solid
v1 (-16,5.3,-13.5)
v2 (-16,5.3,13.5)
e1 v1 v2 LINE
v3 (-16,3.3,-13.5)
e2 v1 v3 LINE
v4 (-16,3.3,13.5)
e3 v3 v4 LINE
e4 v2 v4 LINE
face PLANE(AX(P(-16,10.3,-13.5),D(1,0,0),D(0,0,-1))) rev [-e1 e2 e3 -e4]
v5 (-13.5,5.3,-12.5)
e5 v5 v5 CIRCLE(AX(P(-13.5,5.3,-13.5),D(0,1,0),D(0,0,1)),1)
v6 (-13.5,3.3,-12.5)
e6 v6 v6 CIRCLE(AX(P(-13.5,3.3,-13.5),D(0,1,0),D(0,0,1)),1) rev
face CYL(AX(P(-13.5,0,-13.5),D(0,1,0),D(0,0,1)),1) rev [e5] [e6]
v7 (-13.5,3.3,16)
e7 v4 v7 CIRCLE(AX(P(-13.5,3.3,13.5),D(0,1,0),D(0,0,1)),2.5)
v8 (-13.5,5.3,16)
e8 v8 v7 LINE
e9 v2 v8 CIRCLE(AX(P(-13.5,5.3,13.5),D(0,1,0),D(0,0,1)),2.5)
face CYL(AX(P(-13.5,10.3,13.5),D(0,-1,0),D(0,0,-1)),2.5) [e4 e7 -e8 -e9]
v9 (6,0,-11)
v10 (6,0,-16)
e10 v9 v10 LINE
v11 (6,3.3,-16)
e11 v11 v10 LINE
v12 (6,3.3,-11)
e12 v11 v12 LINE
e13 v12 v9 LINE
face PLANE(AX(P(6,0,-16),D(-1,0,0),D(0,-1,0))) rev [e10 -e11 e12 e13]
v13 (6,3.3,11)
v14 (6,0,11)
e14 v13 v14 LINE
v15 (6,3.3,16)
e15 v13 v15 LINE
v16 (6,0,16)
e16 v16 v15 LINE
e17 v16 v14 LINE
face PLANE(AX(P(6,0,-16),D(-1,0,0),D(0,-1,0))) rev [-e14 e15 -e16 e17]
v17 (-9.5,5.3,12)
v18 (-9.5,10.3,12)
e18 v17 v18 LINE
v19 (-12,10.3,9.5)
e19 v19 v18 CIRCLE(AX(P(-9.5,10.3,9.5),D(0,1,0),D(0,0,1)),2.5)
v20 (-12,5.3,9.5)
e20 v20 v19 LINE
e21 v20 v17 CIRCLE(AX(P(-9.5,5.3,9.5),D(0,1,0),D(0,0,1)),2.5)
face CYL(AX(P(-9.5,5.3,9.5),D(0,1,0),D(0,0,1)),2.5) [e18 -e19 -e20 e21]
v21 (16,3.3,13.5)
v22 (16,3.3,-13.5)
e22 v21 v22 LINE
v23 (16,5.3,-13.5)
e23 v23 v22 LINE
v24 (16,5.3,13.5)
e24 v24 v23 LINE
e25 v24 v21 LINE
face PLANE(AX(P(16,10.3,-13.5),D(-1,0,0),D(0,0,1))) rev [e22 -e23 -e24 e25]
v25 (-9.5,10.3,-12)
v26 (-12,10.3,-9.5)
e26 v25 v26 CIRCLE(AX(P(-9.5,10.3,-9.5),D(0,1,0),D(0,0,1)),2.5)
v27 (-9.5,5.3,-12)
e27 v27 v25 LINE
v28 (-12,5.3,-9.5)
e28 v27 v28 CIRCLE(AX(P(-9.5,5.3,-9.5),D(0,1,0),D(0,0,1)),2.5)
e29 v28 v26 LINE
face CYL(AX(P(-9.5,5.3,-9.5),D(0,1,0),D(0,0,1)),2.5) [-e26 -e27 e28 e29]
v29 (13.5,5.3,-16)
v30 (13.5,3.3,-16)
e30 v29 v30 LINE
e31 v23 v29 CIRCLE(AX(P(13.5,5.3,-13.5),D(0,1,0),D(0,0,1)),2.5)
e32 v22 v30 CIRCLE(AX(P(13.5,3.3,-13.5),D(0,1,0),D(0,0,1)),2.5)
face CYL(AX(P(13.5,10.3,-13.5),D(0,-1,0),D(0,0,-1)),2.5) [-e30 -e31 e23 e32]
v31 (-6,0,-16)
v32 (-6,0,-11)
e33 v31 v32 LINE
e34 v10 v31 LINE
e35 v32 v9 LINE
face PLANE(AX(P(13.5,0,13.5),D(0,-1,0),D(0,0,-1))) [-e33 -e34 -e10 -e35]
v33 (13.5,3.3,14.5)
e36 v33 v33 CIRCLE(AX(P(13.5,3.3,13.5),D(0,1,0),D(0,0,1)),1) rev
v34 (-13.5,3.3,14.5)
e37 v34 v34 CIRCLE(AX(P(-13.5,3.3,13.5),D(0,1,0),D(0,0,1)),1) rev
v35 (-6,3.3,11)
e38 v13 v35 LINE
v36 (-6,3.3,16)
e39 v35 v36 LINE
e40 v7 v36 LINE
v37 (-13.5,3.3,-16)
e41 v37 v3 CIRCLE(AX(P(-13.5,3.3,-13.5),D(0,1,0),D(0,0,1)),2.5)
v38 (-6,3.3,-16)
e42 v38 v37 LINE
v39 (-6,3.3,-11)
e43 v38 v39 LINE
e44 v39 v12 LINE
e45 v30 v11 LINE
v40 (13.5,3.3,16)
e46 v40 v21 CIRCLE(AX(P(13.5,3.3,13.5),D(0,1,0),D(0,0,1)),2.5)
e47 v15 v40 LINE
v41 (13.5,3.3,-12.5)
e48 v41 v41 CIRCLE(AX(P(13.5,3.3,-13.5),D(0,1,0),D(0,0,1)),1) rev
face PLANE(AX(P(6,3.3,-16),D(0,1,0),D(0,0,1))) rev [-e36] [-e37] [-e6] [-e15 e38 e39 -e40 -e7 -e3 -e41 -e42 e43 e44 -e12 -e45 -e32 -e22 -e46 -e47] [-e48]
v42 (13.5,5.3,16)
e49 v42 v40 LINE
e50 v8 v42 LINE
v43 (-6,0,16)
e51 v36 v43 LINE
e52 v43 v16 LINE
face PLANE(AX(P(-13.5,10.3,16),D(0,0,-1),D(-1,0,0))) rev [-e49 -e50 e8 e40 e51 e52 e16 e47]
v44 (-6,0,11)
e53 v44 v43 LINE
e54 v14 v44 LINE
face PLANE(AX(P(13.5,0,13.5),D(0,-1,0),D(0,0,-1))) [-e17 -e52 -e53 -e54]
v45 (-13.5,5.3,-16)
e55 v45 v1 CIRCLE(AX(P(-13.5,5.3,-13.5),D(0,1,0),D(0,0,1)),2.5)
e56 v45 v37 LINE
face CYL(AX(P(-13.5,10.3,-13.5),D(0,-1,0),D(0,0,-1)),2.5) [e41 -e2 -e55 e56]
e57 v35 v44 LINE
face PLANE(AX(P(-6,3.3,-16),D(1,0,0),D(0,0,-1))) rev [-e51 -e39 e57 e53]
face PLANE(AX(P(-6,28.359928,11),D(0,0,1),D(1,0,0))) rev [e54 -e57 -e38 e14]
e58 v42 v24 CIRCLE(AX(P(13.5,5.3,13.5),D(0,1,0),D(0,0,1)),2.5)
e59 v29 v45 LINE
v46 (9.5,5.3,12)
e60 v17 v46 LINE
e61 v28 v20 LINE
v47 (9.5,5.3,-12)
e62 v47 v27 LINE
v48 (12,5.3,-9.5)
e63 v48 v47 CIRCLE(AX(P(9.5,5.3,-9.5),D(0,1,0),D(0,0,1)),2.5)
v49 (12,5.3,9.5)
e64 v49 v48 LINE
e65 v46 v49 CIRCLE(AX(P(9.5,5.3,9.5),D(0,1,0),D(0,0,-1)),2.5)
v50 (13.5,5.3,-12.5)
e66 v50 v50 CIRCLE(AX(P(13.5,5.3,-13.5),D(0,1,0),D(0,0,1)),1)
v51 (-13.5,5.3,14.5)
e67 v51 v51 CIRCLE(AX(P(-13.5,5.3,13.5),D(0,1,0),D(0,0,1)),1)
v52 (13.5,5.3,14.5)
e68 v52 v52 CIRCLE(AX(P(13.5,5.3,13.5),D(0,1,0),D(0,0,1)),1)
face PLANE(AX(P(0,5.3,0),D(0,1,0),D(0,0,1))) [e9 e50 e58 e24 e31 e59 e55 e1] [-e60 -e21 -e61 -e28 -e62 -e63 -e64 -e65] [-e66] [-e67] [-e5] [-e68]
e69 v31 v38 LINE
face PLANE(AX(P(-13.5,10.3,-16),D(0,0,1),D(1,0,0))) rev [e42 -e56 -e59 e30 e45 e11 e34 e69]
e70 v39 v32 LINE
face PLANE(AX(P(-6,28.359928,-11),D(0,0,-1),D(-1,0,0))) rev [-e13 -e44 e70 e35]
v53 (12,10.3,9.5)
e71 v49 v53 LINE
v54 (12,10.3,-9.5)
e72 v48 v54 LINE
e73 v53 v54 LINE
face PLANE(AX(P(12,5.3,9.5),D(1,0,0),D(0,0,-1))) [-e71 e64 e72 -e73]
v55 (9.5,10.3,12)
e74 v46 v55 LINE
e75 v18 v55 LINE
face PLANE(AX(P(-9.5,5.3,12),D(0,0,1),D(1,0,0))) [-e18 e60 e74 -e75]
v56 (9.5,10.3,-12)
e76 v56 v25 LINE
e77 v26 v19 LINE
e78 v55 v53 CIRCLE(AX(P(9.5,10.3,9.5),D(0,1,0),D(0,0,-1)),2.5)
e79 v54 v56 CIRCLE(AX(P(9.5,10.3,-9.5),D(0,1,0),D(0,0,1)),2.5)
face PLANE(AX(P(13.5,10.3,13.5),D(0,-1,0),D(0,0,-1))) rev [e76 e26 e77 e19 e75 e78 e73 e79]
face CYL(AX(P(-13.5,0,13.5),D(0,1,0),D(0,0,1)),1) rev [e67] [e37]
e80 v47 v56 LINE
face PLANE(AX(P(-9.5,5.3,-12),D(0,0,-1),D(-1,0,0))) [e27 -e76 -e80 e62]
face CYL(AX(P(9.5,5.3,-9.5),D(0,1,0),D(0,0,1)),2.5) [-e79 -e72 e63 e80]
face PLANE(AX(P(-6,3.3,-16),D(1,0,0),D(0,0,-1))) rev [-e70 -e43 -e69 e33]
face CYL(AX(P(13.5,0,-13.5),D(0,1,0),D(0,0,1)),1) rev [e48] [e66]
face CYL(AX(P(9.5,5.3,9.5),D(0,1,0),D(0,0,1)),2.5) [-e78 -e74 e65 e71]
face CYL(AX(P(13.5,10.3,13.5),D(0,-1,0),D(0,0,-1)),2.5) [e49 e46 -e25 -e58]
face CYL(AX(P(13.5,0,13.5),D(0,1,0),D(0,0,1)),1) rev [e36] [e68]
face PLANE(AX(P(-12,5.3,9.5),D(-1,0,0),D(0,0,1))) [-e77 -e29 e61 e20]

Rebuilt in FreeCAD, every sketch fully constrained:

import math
import FreeCAD as App
import Part
import Sketcher

V = App.Vector


def add_polygon(sketch, points):
    """Adds a closed chain of lines whose ends are joined by coincident constraints."""
    first, n = sketch.GeometryCount, len(points)
    for a, b in zip(points, points[1:] + points[:1]):
        sketch.addGeometry(Part.LineSegment(App.Vector(*a, 0), App.Vector(*b, 0)), False)
    for i in range(n):
        sketch.addConstraint(Sketcher.Constraint("Coincident", first + i, 2, first + (i + 1) % n, 1))

doc = App.newDocument("Part")
body = doc.addObject("PartDesign::Body", "Body")

sketch1 = body.newObject("Sketcher::SketchObject", "Sketch")
sketch1.AttachmentSupport = (doc.getObject("XZ_Plane"), [""])
sketch1.MapMode = "FlatFace"
sketch1.addGeometry(Part.LineSegment(V(13.5, -16, 0), V(-13.5, -16, 0)), False)
sketch1.addGeometry(Part.ArcOfCircle(Part.Circle(V(-13.5, -13.5, 0), V(0, 0, 1), 2.5), math.radians(180), math.radians(270)), False)
sketch1.addGeometry(Part.LineSegment(V(-16, -13.5, 0), V(-16, 13.5, 0)), False)
sketch1.addGeometry(Part.ArcOfCircle(Part.Circle(V(-13.5, 13.5, 0), V(0, 0, 1), 2.5), math.radians(90), math.radians(180)), False)
sketch1.addGeometry(Part.LineSegment(V(-13.5, 16, 0), V(13.5, 16, 0)), False)
sketch1.addGeometry(Part.ArcOfCircle(Part.Circle(V(13.5, 13.5, 0), V(0, 0, 1), 2.5), math.radians(0), math.radians(90)), False)
sketch1.addGeometry(Part.LineSegment(V(16, 13.5, 0), V(16, -13.5, 0)), False)
sketch1.addGeometry(Part.ArcOfCircle(Part.Circle(V(13.5, -13.5, 0), V(0, 0, 1), 2.5), math.radians(-90), math.radians(0)), False)
sketch1.addConstraint(Sketcher.Constraint("Tangent", 0, 2, 1, 2))
sketch1.addConstraint(Sketcher.Constraint("Tangent", 1, 1, 2, 1))
sketch1.addConstraint(Sketcher.Constraint("Tangent", 2, 2, 3, 2))
sketch1.addConstraint(Sketcher.Constraint("Tangent", 3, 1, 4, 1))
sketch1.addConstraint(Sketcher.Constraint("Tangent", 4, 2, 5, 2))
sketch1.addConstraint(Sketcher.Constraint("Tangent", 5, 1, 6, 1))
sketch1.addConstraint(Sketcher.Constraint("Tangent", 6, 2, 7, 2))
sketch1.addConstraint(Sketcher.Constraint("Tangent", 7, 1, 0, 1))
sketch1.addConstraint(Sketcher.Constraint("Horizontal", 0))
sketch1.addConstraint(Sketcher.Constraint("Vertical", 2))
sketch1.addConstraint(Sketcher.Constraint("Horizontal", 4))
sketch1.addConstraint(Sketcher.Constraint("Vertical", 6))
sketch1.addConstraint(Sketcher.Constraint("Equal", 1, 3))
sketch1.addConstraint(Sketcher.Constraint("Equal", 3, 5))
sketch1.addConstraint(Sketcher.Constraint("Equal", 5, 7))
sketch1.addConstraint(Sketcher.Constraint("Symmetric", 1, 3, 5, 3, -1, 1))
sketch1.addConstraint(Sketcher.Constraint("Equal", 4, 2))
sketch1.addConstraint(Sketcher.Constraint("Radius", 1, 2.5))
sketch1.addConstraint(Sketcher.Constraint("DistanceX", 0, 2, 0, 1, 27.0))
pad1 = body.newObject("PartDesign::Pad", "Pad")
pad1.Profile = sketch1
pad1.Length = 10.3
pad1.Reversed = True

sketch2 = body.newObject("Sketcher::SketchObject", "Sketch001")
sketch2.AttachmentSupport = (doc.getObject("XZ_Plane"), [""])
sketch2.MapMode = "FlatFace"
sketch2.AttachmentOffset = App.Placement(V(0, 0, -10.3), App.Rotation())
add_polygon(sketch2, [(-21.641, -21.641), (-21.641, 21.641), (21.641, 21.641), (21.641, -21.641)])
sketch2.addGeometry(Part.LineSegment(V(9.5, 12, 0), V(-9.5, 12, 0)), False)
sketch2.addGeometry(Part.ArcOfCircle(Part.Circle(V(-9.5, 9.5, 0), V(0, 0, 1), 2.5), math.radians(90), math.radians(180)), False)
sketch2.addGeometry(Part.LineSegment(V(-12, 9.5, 0), V(-12, -9.5, 0)), False)
sketch2.addGeometry(Part.ArcOfCircle(Part.Circle(V(-9.5, -9.5, 0), V(0, 0, 1), 2.5), math.radians(180), math.radians(270)), False)
sketch2.addGeometry(Part.LineSegment(V(-9.5, -12, 0), V(9.5, -12, 0)), False)
sketch2.addGeometry(Part.ArcOfCircle(Part.Circle(V(9.5, -9.5, 0), V(0, 0, 1), 2.5), math.radians(-90), math.radians(0)), False)
sketch2.addGeometry(Part.LineSegment(V(12, -9.5, 0), V(12, 9.5, 0)), False)
sketch2.addGeometry(Part.ArcOfCircle(Part.Circle(V(9.5, 9.5, 0), V(0, 0, 1), 2.5), math.radians(0), math.radians(90)), False)
sketch2.addConstraint(Sketcher.Constraint("Tangent", 4, 2, 5, 1))
sketch2.addConstraint(Sketcher.Constraint("Tangent", 5, 2, 6, 1))
sketch2.addConstraint(Sketcher.Constraint("Tangent", 6, 2, 7, 1))
sketch2.addConstraint(Sketcher.Constraint("Tangent", 7, 2, 8, 1))
sketch2.addConstraint(Sketcher.Constraint("Tangent", 8, 2, 9, 1))
sketch2.addConstraint(Sketcher.Constraint("Tangent", 9, 2, 10, 1))
sketch2.addConstraint(Sketcher.Constraint("Tangent", 10, 2, 11, 1))
sketch2.addConstraint(Sketcher.Constraint("Tangent", 11, 2, 4, 1))
sketch2.addConstraint(Sketcher.Constraint("Vertical", 0))
sketch2.addConstraint(Sketcher.Constraint("Horizontal", 1))
sketch2.addConstraint(Sketcher.Constraint("Vertical", 2))
sketch2.addConstraint(Sketcher.Constraint("Horizontal", 3))
sketch2.addConstraint(Sketcher.Constraint("Horizontal", 4))
sketch2.addConstraint(Sketcher.Constraint("Vertical", 6))
sketch2.addConstraint(Sketcher.Constraint("Horizontal", 8))
sketch2.addConstraint(Sketcher.Constraint("Vertical", 10))
sketch2.addConstraint(Sketcher.Constraint("Equal", 5, 7))
sketch2.addConstraint(Sketcher.Constraint("Equal", 7, 9))
sketch2.addConstraint(Sketcher.Constraint("Equal", 9, 11))
sketch2.addConstraint(Sketcher.Constraint("Symmetric", 5, 3, 9, 3, -1, 1))
sketch2.addConstraint(Sketcher.Constraint("Symmetric", 0, 2, 2, 2, -1, 1))
sketch2.addConstraint(Sketcher.Constraint("Equal", 3, 0))
sketch2.addConstraint(Sketcher.Constraint("Equal", 8, 6))
sketch2.addConstraint(Sketcher.Constraint("Radius", 5, 2.5))
sketch2.addConstraint(Sketcher.Constraint("DistanceX", 4, 2, 4, 1, 19.0))
sketch2.addConstraint(Sketcher.Constraint("DistanceX", 1, 1, 1, 2, 43.282))
pocket1 = body.newObject("PartDesign::Pocket", "Pocket")
pocket1.Profile = sketch2
pocket1.Length = 5
pocket1.Reversed = True

sketch3 = body.newObject("Sketcher::SketchObject", "Sketch002")
sketch3.AttachmentSupport = (doc.getObject("XZ_Plane"), [""])
sketch3.MapMode = "FlatFace"
sketch3.AttachmentOffset = App.Placement(V(0, 0, -5.3), App.Rotation())
sketch3.addGeometry(Part.Circle(V(-13.5, -13.5, 0), V(0, 0, 1), 1), False)
sketch3.addGeometry(Part.Circle(V(13.5, 13.5, 0), V(0, 0, 1), 1), False)
sketch3.addGeometry(Part.Circle(V(-13.5, 13.5, 0), V(0, 0, 1), 1), False)
sketch3.addGeometry(Part.Circle(V(13.5, -13.5, 0), V(0, 0, 1), 1), False)
sketch3.addConstraint(Sketcher.Constraint("Equal", 0, 1))
sketch3.addConstraint(Sketcher.Constraint("Equal", 1, 2))
sketch3.addConstraint(Sketcher.Constraint("Equal", 2, 3))
sketch3.addConstraint(Sketcher.Constraint("Symmetric", 0, 3, 1, 3, -1, 1))
sketch3.addConstraint(Sketcher.Constraint("Symmetric", 2, 3, 3, 3, -1, 1))
sketch3.addConstraint(Sketcher.Constraint("Symmetric", 1, 3, 2, 3, -2))
sketch3.addConstraint(Sketcher.Constraint("Diameter", 0, 2.0))
sketch3.addConstraint(Sketcher.Constraint("DistanceX", 0, 3, 1, 3, 27.0))
sketch3.addConstraint(Sketcher.Constraint("DistanceY", 0, 3, 1, 3, 27.0))
pocket2 = body.newObject("PartDesign::Pocket", "Pocket001")
pocket2.Profile = sketch3
pocket2.Type = "ThroughAll"
pocket2.Midplane = True

sketch4 = body.newObject("Sketcher::SketchObject", "Sketch003")
sketch4.AttachmentSupport = (doc.getObject("XY_Plane"), [""])
sketch4.MapMode = "FlatFace"
sketch4.AttachmentOffset = App.Placement(V(0, 0, 16), App.Rotation())
add_polygon(sketch4, [(-17.244346, 3.3), (-17.244346, -0.614629), (-6, -0.614629), (-6, 3.3)])
add_polygon(sketch4, [(6, 3.3), (6, -0.614629), (18.65594, -0.614629), (18.65594, 3.3)])
sketch4.addConstraint(Sketcher.Constraint("Vertical", 0))
sketch4.addConstraint(Sketcher.Constraint("Horizontal", 1))
sketch4.addConstraint(Sketcher.Constraint("Vertical", 2))
sketch4.addConstraint(Sketcher.Constraint("Horizontal", 3))
sketch4.addConstraint(Sketcher.Constraint("Vertical", 4))
sketch4.addConstraint(Sketcher.Constraint("Horizontal", 5))
sketch4.addConstraint(Sketcher.Constraint("Vertical", 6))
sketch4.addConstraint(Sketcher.Constraint("Horizontal", 7))
sketch4.addConstraint(Sketcher.Constraint("Symmetric", 1, 2, 4, 2, -2))
sketch4.addConstraint(Sketcher.Constraint("Horizontal", 3, 2, 6, 2))
sketch4.addConstraint(Sketcher.Constraint("DistanceX", 1, 2, -1, 1, 6.0))
sketch4.addConstraint(Sketcher.Constraint("DistanceY", -1, 1, 2, 2, 3.3))
sketch4.addConstraint(Sketcher.Constraint("DistanceX", 5, 1, 5, 2, 12.65594))
sketch4.addConstraint(Sketcher.Constraint("DistanceY", 0, 2, 0, 1, 3.914629))
sketch4.addConstraint(Sketcher.Constraint("DistanceX", 1, 1, 1, 2, 11.244346))
pocket3 = body.newObject("PartDesign::Pocket", "Pocket002")
pocket3.Profile = sketch4
pocket3.Type = "ThroughAll"
pocket3.Midplane = True

sketch5 = body.newObject("Sketcher::SketchObject", "Sketch004")
sketch5.AttachmentSupport = (doc.getObject("XZ_Plane"), [""])
sketch5.MapMode = "FlatFace"
add_polygon(sketch5, [(-6, 11), (-6, -11), (6, -11), (6, 11)])
sketch5.addConstraint(Sketcher.Constraint("Vertical", 0))
sketch5.addConstraint(Sketcher.Constraint("Horizontal", 1))
sketch5.addConstraint(Sketcher.Constraint("Vertical", 2))
sketch5.addConstraint(Sketcher.Constraint("Horizontal", 3))
sketch5.addConstraint(Sketcher.Constraint("Symmetric", 0, 2, 2, 2, -1, 1))
sketch5.addConstraint(Sketcher.Constraint("DistanceX", 1, 1, 1, 2, 12.0))
sketch5.addConstraint(Sketcher.Constraint("DistanceY", 0, 2, 0, 1, 22.0))
pocket4 = body.newObject("PartDesign::Pocket", "Pocket003")
pocket4.Profile = sketch5
pocket4.Length = 3.3

doc.recompute()
